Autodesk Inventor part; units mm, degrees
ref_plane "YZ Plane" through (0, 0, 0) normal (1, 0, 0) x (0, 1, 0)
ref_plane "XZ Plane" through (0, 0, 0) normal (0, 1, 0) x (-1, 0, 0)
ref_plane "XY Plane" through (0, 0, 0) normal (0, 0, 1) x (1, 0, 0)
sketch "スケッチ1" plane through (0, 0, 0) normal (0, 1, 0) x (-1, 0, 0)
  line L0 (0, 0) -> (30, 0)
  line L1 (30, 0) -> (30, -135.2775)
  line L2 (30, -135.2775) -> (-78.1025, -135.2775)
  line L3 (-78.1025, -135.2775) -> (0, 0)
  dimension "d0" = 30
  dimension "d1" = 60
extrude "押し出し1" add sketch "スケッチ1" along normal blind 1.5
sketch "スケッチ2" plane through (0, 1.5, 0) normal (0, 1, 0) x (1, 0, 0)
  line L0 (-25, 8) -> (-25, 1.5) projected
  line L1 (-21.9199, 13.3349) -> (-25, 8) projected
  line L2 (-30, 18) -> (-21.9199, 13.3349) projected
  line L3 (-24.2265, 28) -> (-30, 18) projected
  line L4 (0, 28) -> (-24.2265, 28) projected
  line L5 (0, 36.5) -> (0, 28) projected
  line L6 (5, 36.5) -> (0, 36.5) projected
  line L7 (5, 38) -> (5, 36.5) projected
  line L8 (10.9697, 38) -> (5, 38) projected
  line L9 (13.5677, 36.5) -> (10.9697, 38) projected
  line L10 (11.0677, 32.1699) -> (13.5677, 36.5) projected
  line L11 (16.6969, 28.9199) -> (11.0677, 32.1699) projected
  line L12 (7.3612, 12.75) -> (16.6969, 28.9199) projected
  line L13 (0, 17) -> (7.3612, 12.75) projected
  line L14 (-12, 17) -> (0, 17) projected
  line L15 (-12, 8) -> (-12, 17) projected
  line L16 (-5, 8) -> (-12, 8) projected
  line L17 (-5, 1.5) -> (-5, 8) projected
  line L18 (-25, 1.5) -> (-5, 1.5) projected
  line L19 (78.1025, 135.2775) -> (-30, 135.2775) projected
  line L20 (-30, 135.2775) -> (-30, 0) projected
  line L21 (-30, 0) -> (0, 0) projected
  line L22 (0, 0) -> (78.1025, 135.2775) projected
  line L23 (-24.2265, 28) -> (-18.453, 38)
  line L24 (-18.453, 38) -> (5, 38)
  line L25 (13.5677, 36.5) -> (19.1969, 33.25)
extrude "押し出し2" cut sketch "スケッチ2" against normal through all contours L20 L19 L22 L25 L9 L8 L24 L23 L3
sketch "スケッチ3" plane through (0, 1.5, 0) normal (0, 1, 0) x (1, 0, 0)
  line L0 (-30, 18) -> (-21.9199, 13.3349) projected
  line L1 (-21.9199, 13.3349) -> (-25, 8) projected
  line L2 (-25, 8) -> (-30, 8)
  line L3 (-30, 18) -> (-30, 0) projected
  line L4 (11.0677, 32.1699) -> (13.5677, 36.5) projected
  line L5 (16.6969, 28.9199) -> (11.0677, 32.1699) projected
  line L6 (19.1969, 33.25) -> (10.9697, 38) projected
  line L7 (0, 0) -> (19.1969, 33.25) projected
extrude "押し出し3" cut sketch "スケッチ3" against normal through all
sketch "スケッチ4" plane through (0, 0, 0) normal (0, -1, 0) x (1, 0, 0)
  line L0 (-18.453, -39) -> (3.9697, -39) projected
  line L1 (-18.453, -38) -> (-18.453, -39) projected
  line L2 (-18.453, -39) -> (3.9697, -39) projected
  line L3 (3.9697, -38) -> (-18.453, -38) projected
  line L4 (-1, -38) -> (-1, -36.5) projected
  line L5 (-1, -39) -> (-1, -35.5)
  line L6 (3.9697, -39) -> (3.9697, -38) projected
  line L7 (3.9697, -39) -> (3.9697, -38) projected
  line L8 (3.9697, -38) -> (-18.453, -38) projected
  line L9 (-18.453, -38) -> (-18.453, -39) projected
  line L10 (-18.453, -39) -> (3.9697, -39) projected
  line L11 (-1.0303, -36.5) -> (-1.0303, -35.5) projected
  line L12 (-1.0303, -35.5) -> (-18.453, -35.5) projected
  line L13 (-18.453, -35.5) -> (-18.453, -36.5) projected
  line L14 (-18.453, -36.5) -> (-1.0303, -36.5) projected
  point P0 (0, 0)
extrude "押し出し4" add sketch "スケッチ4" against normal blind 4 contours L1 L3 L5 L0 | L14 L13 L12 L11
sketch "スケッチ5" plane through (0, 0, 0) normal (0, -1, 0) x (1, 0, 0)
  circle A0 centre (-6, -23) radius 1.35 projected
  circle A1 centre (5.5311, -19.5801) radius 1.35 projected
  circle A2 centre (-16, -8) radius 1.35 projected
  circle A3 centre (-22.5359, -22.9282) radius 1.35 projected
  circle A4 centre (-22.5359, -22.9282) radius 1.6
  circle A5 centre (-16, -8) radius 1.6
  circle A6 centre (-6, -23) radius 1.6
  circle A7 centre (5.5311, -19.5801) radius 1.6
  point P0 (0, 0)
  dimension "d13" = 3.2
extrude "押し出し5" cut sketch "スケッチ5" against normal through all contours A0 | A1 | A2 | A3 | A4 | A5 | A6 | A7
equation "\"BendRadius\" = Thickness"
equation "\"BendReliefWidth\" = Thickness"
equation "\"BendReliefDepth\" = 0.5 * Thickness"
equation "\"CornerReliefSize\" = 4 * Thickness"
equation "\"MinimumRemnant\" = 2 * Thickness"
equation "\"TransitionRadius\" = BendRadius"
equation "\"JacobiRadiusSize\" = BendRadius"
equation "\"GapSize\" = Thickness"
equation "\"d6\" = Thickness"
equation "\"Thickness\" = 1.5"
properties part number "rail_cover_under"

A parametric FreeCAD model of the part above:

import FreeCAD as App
import Part
import Sketcher
from FreeCAD import Vector
Q = App.Units.Quantity


def add_polygon(sketch, points):
    """Adds a closed chain of lines whose ends are joined by coincident constraints."""
    first, n = sketch.GeometryCount, len(points)
    for a, b in zip(points, points[1:] + points[:1]):
        sketch.addGeometry(Part.LineSegment(App.Vector(*a, 0), App.Vector(*b, 0)), False)
    for i in range(n):
        sketch.addConstraint(Sketcher.Constraint("Coincident", first + i, 2, first + (i + 1) % n, 1))

doc = App.newDocument("Part")
body = doc.addObject("PartDesign::Body", "Body")

# Sketch on XZ plane
sketch1 = doc.addObject("Sketcher::SketchObject", "Sketch")
body.addObject(sketch1)
sketch1.AttachmentSupport = (doc.XZ_Plane, [""])
sketch1.MapMode = "FlatFace"
add_polygon(sketch1, [(-30, 0), (0, 0), (78.1025, -135.2775), (-30, -135.2775)])  # lines 0-3
sketch1.addConstraint([
    Sketcher.Constraint("Horizontal", 0),
    Sketcher.Constraint("Horizontal", 2),
    Sketcher.Constraint("Vertical", 3),
    Sketcher.Constraint("Coincident", 0, 2, -1, 1),
    Sketcher.Constraint("DistanceX", 0, 1, 0, 2, 30.0),
    Sketcher.Constraint("Angle", 1, Q("-60 deg")),
    Sketcher.Constraint("Distance", 1, 156.205),
])
pad1 = doc.addObject("PartDesign::Pad", "Pad")
body.addObject(pad1)
pad1.Profile = sketch1
pad1.Length = 1.5
pad1.Reversed = True

# Sketch on XZ plane
sketch2 = doc.addObject("Sketcher::SketchObject", "Sketch001")
body.addObject(sketch2)
sketch2.AttachmentSupport = (doc.XZ_Plane, [""])
sketch2.MapMode = "FlatFace"
sketch2.AttachmentOffset = App.Placement(Vector(0, 0, -1.5), App.Rotation())
add_polygon(sketch2, [(-30, -135.2775), (-30, -18), (-18.453, -38), (10.9697, -38), (13.5677, -36.5), (19.196897, -33.250002), (78.1025, -135.2775)])  # lines 0-6
sketch2.addConstraint([
    Sketcher.Constraint("Vertical", 0),
    Sketcher.Constraint("Horizontal", 2),
    Sketcher.Constraint("Horizontal", 6),
    Sketcher.Constraint("Perpendicular", 1, 3),
    Sketcher.Constraint("Parallel", 3, 4),
    Sketcher.Constraint("Perpendicular", 4, 5),
    Sketcher.Constraint("Angle", 1, Q("-60 deg")),
    Sketcher.Constraint("Distance", 3, 3.0),
    Sketcher.Constraint("DistanceX", 0, 2, -1, 1, 30.0),
    Sketcher.Constraint("DistanceY", 0, 2, -1, 1, 18.0),
    Sketcher.Constraint("DistanceY", 1, 2, -1, 1, 38.0),
    Sketcher.Constraint("Distance", 4, 6.5),
    Sketcher.Constraint("DistanceX", 1, 2, 4, 2, 37.65),
    Sketcher.Constraint("DistanceX", 6, 2, 6, 1, 108.1025),
])
pocket1 = doc.addObject("PartDesign::Pocket", "Pocket")
body.addObject(pocket1)
pocket1.Profile = sketch2
pocket1.Type = "ThroughAll"
pocket1.Reversed = True

# Sketch on XZ plane
sketch3 = doc.addObject("Sketcher::SketchObject", "Sketch002")
body.addObject(sketch3)
sketch3.AttachmentSupport = (doc.XZ_Plane, [""])
sketch3.MapMode = "FlatFace"
sketch3.AttachmentOffset = App.Placement(Vector(0, 0, -1.5), App.Rotation())
add_polygon(sketch3, [(-21.9199, -13.3349), (-30, -18), (-30, -8), (-25, -8)])  # lines 0-3
add_polygon(sketch3, [(13.5677, -36.5), (11.0677, -32.1699), (16.696911, -28.919893), (19.1969, -33.25)])  # lines 4-7
sketch3.addConstraint([
    Sketcher.Constraint("Vertical", 1),
    Sketcher.Constraint("Horizontal", 2),
    Sketcher.Constraint("Perpendicular", 0, 3),
    Sketcher.Constraint("Parallel", 3, 4),
    Sketcher.Constraint("Perpendicular", 4, 5),
    Sketcher.Constraint("Perpendicular", 5, 6),
    Sketcher.Constraint("Perpendicular", 6, 7),
    Sketcher.Constraint("DistanceX", 2, 1, 2, 2, 5.0),
    Sketcher.Constraint("DistanceY", 1, 1, 1, 2, 10.0),
    Sketcher.Constraint("Angle", 0, Q("-149.9997 deg")),
    Sketcher.Constraint("Distance", 4, 5.0),
    Sketcher.Constraint("DistanceX", 0, 2, -1, 1, 30.0),
    Sketcher.Constraint("DistanceY", 0, 2, -1, 1, 18.0),
    Sketcher.Constraint("Distance", 5, 6.5),
    Sketcher.Constraint("DistanceY", 7, 2, -1, 1, 36.5),
    Sketcher.Constraint("DistanceX", -1, 1, 5, 2, 16.697),
])
pocket2 = doc.addObject("PartDesign::Pocket", "Pocket001")
body.addObject(pocket2)
pocket2.Profile = sketch3
pocket2.Type = "ThroughAll"
pocket2.Reversed = True

# Sketch on XZ plane
sketch4 = doc.addObject("Sketcher::SketchObject", "Sketch003")
body.addObject(sketch4)
sketch4.AttachmentSupport = (doc.XZ_Plane, [""])
sketch4.MapMode = "FlatFace"
add_polygon(sketch4, [(-18.453, -38), (-18.453, -39), (-1, -39), (-1, -38)])  # lines 0-3
add_polygon(sketch4, [(-18.453, -36.5), (-1.0303, -36.5), (-1.0303, -35.5), (-18.453, -35.5)])  # lines 4-7
sketch4.addConstraint([
    Sketcher.Constraint("Vertical", 0),
    Sketcher.Constraint("Horizontal", 1),
    Sketcher.Constraint("Vertical", 2),
    Sketcher.Constraint("Horizontal", 3),
    Sketcher.Constraint("Horizontal", 4),
    Sketcher.Constraint("Vertical", 5),
    Sketcher.Constraint("Horizontal", 6),
    Sketcher.Constraint("Vertical", 7),
    Sketcher.Constraint("Vertical", 3, 2, 6, 2),
    Sketcher.Constraint("Equal", 2, 5),
    Sketcher.Constraint("DistanceY", 0, 2, 0, 1, 1.0),
    Sketcher.Constraint("DistanceY", 0, 2, -1, 1, 39.0),
    Sketcher.Constraint("DistanceX", 1, 2, -1, 1, 1.0),
    Sketcher.Constraint("DistanceY", 4, 2, -1, 1, 36.5),
    Sketcher.Constraint("DistanceX", 1, 1, 1, 2, 17.453),
    Sketcher.Constraint("DistanceX", 4, 1, 4, 2, 17.4227),
])
pad2 = doc.addObject("PartDesign::Pad", "Pad001")
body.addObject(pad2)
pad2.Profile = sketch4
pad2.Length = 4
pad2.Reversed = True

# Sketch on XZ plane
sketch5 = doc.addObject("Sketcher::SketchObject", "Sketch004")
body.addObject(sketch5)
sketch5.AttachmentSupport = (doc.XZ_Plane, [""])
sketch5.MapMode = "FlatFace"
sketch5.addGeometry([
    Part.Circle(Vector(-6, -23, 0), Vector(0, 0, 1), 1.6),
    Part.Circle(Vector(5.5311, -19.5801, 0), Vector(0, 0, 1), 1.6),
    Part.Circle(Vector(-16, -8, 0), Vector(0, 0, 1), 1.6),
    Part.Circle(Vector(-22.5359, -22.9282, 0), Vector(0, 0, 1), 1.6),
], False)
sketch5.addConstraint([
    Sketcher.Constraint("Equal", 0, 1),
    Sketcher.Constraint("Equal", 1, 2),
    Sketcher.Constraint("Equal", 2, 3),
    Sketcher.Constraint("Diameter", 0, 3.2),
    Sketcher.Constraint("DistanceX", 0, 3, -1, 1, 6.0),
    Sketcher.Constraint("DistanceY", 0, 3, -1, 1, 23.0),
    Sketcher.Constraint("DistanceX", 2, 3, -1, 1, 16.0),
    Sketcher.Constraint("DistanceY", 2, 3, -1, 1, 8.0),
    Sketcher.Constraint("DistanceY", 1, 3, -1, 1, 19.58),
    Sketcher.Constraint("DistanceX", -1, 1, 1, 3, 5.531),
    Sketcher.Constraint("DistanceX", 3, 3, -1, 1, 22.536),
    Sketcher.Constraint("DistanceY", 3, 3, 1, 3, 3.348),
])
pocket3 = doc.addObject("PartDesign::Pocket", "Pocket002")
body.addObject(pocket3)
pocket3.Profile = sketch5
pocket3.Type = "ThroughAll"

doc.recompute()
